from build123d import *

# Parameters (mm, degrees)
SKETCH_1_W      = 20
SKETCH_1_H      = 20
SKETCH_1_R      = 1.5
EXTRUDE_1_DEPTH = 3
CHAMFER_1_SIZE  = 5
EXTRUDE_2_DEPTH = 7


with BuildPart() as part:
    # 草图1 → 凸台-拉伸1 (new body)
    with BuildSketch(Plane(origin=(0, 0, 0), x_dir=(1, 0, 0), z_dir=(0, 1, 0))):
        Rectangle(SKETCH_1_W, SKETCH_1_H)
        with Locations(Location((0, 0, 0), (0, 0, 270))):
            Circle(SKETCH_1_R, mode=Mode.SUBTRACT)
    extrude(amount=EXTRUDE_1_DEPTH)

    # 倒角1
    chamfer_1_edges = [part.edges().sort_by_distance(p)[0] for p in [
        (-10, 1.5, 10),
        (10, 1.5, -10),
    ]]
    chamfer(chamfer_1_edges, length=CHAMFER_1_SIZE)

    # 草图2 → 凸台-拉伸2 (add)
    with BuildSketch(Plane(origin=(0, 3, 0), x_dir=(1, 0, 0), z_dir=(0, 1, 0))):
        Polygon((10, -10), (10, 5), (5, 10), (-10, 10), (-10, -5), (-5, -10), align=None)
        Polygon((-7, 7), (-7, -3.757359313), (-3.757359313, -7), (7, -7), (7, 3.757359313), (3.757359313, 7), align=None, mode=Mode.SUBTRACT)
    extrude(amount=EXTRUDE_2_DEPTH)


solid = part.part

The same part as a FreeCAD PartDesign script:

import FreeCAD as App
import Part
import Sketcher
Q = App.Units.Quantity


def edges_at(feature, points):
    """Names of the edges that pass closest to the given points."""
    edges = feature.Shape.Edges
    near = lambda p: min(range(len(edges)), key=lambda i: edges[i].distToShape(Part.Vertex(*p))[0])
    return sorted({f"Edge{near(p) + 1}" for p in points})

doc = App.newDocument("Part")
params = doc.addObject("Spreadsheet::Sheet", "Params")
for row, (alias, value) in enumerate([
    ("sketch1_diameter", "3 mm"),
    ("sketch1_width", "20 mm"),
    ("pad1_length", "3 mm"),
    ("chamfer_size", "5 mm"),
    ("sketch2_width", "15 mm"),
    ("pad2_length", "7 mm"),
], start=1):
    params.set(f"A{row}", alias)
    params.set(f"B{row}", "=" + value)
    params.setAlias(f"B{row}", alias)

body = doc.addObject("PartDesign::Body", "Body")

sketch1 = body.newObject("Sketcher::SketchObject", "Sketch")
sketch1.AttachmentSupport = (doc.getObject("XZ_Plane"), [""])
sketch1.MapMode = "FlatFace"
sketch1.addGeometry(Part.LineSegment(App.Vector(-10, -10, 0), App.Vector(-10, 10, 0)), False)
sketch1.addGeometry(Part.LineSegment(App.Vector(-10, 10, 0), App.Vector(10, 10, 0)), False)
sketch1.addGeometry(Part.LineSegment(App.Vector(10, 10, 0), App.Vector(10, -10, 0)), False)
sketch1.addGeometry(Part.LineSegment(App.Vector(10, -10, 0), App.Vector(-10, -10, 0)), False)
sketch1.addGeometry(Part.Circle(App.Vector(0, 0, 0), App.Vector(0, 0, 1), 1.5), False)
sketch1.addConstraint(Sketcher.Constraint("Coincident", 0, 2, 1, 1))
sketch1.addConstraint(Sketcher.Constraint("Coincident", 1, 2, 2, 1))
sketch1.addConstraint(Sketcher.Constraint("Coincident", 2, 2, 3, 1))
sketch1.addConstraint(Sketcher.Constraint("Coincident", 3, 2, 0, 1))
sketch1.addConstraint(Sketcher.Constraint("Vertical", 0))
sketch1.addConstraint(Sketcher.Constraint("Horizontal", 1))
sketch1.addConstraint(Sketcher.Constraint("Vertical", 2))
sketch1.addConstraint(Sketcher.Constraint("Horizontal", 3))
sketch1.addConstraint(Sketcher.Constraint("Coincident", 4, 3, -1, 1))
sketch1.addConstraint(Sketcher.Constraint("Symmetric", 0, 2, 2, 2, -1, 1))
sketch1.addConstraint(Sketcher.Constraint("Equal", 3, 0))
sketch1.addConstraint(Sketcher.Constraint("Diameter", 4, Q("3 mm")))
sketch1.addConstraint(Sketcher.Constraint("DistanceX", 1, 1, 1, 2, Q("20 mm")))
sketch1.setExpression("Constraints[11]", "Params.sketch1_diameter")
sketch1.setExpression("Constraints[12]", "Params.sketch1_width")
pad1 = body.newObject("PartDesign::Pad", "Pad")
pad1.Profile = sketch1
pad1.setExpression("Length", "Params.pad1_length")
pad1.Reversed = True
doc.recompute()

chamfer = body.newObject("PartDesign::Chamfer", "Chamfer")
chamfer.Base = (pad1, edges_at(pad1, [(-10, 1.5, 10), (10, 1.5, -10)]))
chamfer.setExpression("Size", "Params.chamfer_size")

sketch2 = body.newObject("Sketcher::SketchObject", "Sketch001")
sketch2.AttachmentSupport = (doc.getObject("XZ_Plane"), [""])
sketch2.MapMode = "FlatFace"
sketch2.AttachmentOffset = App.Placement(App.Vector(0, 0, -3), App.Rotation())
sketch2.addGeometry(Part.LineSegment(App.Vector(10, 10, 0), App.Vector(10, -5, 0)), False)
sketch2.addGeometry(Part.LineSegment(App.Vector(10, -5, 0), App.Vector(5, -10, 0)), False)
sketch2.addGeometry(Part.LineSegment(App.Vector(5, -10, 0), App.Vector(-10, -10, 0)), False)
sketch2.addGeometry(Part.LineSegment(App.Vector(-10, -10, 0), App.Vector(-10, 5, 0)), False)
sketch2.addGeometry(Part.LineSegment(App.Vector(-10, 5, 0), App.Vector(-5, 10, 0)), False)
sketch2.addGeometry(Part.LineSegment(App.Vector(-5, 10, 0), App.Vector(10, 10, 0)), False)
sketch2.addGeometry(Part.LineSegment(App.Vector(-7, 3.8, 0), App.Vector(-7, -7, 0)), False)
sketch2.addGeometry(Part.LineSegment(App.Vector(-7, -7, 0), App.Vector(3.8, -7, 0)), False)
sketch2.addGeometry(Part.LineSegment(App.Vector(3.8, -7, 0), App.Vector(7, -3.8, 0)), False)
sketch2.addGeometry(Part.LineSegment(App.Vector(7, -3.8, 0), App.Vector(7, 7, 0)), False)
sketch2.addGeometry(Part.LineSegment(App.Vector(7, 7, 0), App.Vector(-3.8, 7, 0)), False)
sketch2.addGeometry(Part.LineSegment(App.Vector(-3.8, 7, 0), App.Vector(-7, 3.8, 0)), False)
sketch2.addConstraint(Sketcher.Constraint("Coincident", 0, 2, 1, 1))
sketch2.addConstraint(Sketcher.Constraint("Coincident", 1, 2, 2, 1))
sketch2.addConstraint(Sketcher.Constraint("Coincident", 2, 2, 3, 1))
sketch2.addConstraint(Sketcher.Constraint("Coincident", 3, 2, 4, 1))
sketch2.addConstraint(Sketcher.Constraint("Coincident", 4, 2, 5, 1))
sketch2.addConstraint(Sketcher.Constraint("Coincident", 5, 2, 0, 1))
sketch2.addConstraint(Sketcher.Constraint("Coincident", 6, 2, 7, 1))
sketch2.addConstraint(Sketcher.Constraint("Coincident", 7, 2, 8, 1))
sketch2.addConstraint(Sketcher.Constraint("Coincident", 8, 2, 9, 1))
sketch2.addConstraint(Sketcher.Constraint("Coincident", 9, 2, 10, 1))
sketch2.addConstraint(Sketcher.Constraint("Coincident", 10, 2, 11, 1))
sketch2.addConstraint(Sketcher.Constraint("Coincident", 11, 2, 6, 1))
sketch2.addConstraint(Sketcher.Constraint("Vertical", 0))
sketch2.addConstraint(Sketcher.Constraint("Horizontal", 2))
sketch2.addConstraint(Sketcher.Constraint("Vertical", 3))
sketch2.addConstraint(Sketcher.Constraint("Horizontal", 5))
sketch2.addConstraint(Sketcher.Constraint("Vertical", 6))
sketch2.addConstraint(Sketcher.Constraint("Horizontal", 7))
sketch2.addConstraint(Sketcher.Constraint("Vertical", 9))
sketch2.addConstraint(Sketcher.Constraint("Horizontal", 10))
sketch2.addConstraint(Sketcher.Constraint("Symmetric", 0, 2, 3, 2, -1, 1))
sketch2.addConstraint(Sketcher.Constraint("Symmetric", 1, 2, 4, 2, -1, 1))
sketch2.addConstraint(Sketcher.Constraint("Symmetric", 6, 2, 9, 2, -1, 1))
sketch2.addConstraint(Sketcher.Constraint("Parallel", 4, 8))
sketch2.addConstraint(Sketcher.Constraint("Parallel", 8, 11))
sketch2.addConstraint(Sketcher.Constraint("Equal", 7, 10))
sketch2.addConstraint(Sketcher.Constraint("Equal", 5, 0))
sketch2.addConstraint(Sketcher.Constraint("Equal", 10, 6))
sketch2.addConstraint(Sketcher.Constraint("DistanceX", 2, 2, 2, 1, Q("15 mm")))
sketch2.addConstraint(Sketcher.Constraint("Angle", 1, Q("-135 deg")))
sketch2.addConstraint(Sketcher.Constraint("DistanceX", -1, 1, 0, 2, Q("10 mm")))
sketch2.addConstraint(Sketcher.Constraint("DistanceX", 6, 2, -1, 1, Q("7 mm")))
sketch2.addConstraint(Sketcher.Constraint("DistanceX", 7, 1, 7, 2, Q("10.757359 mm")))
sketch2.setExpression("Constraints[28]", "Params.sketch2_width")
pad2 = body.newObject("PartDesign::Pad", "Pad001")
pad2.Profile = sketch2
pad2.setExpression("Length", "Params.pad2_length")
pad2.Reversed = True

doc.recompute()
